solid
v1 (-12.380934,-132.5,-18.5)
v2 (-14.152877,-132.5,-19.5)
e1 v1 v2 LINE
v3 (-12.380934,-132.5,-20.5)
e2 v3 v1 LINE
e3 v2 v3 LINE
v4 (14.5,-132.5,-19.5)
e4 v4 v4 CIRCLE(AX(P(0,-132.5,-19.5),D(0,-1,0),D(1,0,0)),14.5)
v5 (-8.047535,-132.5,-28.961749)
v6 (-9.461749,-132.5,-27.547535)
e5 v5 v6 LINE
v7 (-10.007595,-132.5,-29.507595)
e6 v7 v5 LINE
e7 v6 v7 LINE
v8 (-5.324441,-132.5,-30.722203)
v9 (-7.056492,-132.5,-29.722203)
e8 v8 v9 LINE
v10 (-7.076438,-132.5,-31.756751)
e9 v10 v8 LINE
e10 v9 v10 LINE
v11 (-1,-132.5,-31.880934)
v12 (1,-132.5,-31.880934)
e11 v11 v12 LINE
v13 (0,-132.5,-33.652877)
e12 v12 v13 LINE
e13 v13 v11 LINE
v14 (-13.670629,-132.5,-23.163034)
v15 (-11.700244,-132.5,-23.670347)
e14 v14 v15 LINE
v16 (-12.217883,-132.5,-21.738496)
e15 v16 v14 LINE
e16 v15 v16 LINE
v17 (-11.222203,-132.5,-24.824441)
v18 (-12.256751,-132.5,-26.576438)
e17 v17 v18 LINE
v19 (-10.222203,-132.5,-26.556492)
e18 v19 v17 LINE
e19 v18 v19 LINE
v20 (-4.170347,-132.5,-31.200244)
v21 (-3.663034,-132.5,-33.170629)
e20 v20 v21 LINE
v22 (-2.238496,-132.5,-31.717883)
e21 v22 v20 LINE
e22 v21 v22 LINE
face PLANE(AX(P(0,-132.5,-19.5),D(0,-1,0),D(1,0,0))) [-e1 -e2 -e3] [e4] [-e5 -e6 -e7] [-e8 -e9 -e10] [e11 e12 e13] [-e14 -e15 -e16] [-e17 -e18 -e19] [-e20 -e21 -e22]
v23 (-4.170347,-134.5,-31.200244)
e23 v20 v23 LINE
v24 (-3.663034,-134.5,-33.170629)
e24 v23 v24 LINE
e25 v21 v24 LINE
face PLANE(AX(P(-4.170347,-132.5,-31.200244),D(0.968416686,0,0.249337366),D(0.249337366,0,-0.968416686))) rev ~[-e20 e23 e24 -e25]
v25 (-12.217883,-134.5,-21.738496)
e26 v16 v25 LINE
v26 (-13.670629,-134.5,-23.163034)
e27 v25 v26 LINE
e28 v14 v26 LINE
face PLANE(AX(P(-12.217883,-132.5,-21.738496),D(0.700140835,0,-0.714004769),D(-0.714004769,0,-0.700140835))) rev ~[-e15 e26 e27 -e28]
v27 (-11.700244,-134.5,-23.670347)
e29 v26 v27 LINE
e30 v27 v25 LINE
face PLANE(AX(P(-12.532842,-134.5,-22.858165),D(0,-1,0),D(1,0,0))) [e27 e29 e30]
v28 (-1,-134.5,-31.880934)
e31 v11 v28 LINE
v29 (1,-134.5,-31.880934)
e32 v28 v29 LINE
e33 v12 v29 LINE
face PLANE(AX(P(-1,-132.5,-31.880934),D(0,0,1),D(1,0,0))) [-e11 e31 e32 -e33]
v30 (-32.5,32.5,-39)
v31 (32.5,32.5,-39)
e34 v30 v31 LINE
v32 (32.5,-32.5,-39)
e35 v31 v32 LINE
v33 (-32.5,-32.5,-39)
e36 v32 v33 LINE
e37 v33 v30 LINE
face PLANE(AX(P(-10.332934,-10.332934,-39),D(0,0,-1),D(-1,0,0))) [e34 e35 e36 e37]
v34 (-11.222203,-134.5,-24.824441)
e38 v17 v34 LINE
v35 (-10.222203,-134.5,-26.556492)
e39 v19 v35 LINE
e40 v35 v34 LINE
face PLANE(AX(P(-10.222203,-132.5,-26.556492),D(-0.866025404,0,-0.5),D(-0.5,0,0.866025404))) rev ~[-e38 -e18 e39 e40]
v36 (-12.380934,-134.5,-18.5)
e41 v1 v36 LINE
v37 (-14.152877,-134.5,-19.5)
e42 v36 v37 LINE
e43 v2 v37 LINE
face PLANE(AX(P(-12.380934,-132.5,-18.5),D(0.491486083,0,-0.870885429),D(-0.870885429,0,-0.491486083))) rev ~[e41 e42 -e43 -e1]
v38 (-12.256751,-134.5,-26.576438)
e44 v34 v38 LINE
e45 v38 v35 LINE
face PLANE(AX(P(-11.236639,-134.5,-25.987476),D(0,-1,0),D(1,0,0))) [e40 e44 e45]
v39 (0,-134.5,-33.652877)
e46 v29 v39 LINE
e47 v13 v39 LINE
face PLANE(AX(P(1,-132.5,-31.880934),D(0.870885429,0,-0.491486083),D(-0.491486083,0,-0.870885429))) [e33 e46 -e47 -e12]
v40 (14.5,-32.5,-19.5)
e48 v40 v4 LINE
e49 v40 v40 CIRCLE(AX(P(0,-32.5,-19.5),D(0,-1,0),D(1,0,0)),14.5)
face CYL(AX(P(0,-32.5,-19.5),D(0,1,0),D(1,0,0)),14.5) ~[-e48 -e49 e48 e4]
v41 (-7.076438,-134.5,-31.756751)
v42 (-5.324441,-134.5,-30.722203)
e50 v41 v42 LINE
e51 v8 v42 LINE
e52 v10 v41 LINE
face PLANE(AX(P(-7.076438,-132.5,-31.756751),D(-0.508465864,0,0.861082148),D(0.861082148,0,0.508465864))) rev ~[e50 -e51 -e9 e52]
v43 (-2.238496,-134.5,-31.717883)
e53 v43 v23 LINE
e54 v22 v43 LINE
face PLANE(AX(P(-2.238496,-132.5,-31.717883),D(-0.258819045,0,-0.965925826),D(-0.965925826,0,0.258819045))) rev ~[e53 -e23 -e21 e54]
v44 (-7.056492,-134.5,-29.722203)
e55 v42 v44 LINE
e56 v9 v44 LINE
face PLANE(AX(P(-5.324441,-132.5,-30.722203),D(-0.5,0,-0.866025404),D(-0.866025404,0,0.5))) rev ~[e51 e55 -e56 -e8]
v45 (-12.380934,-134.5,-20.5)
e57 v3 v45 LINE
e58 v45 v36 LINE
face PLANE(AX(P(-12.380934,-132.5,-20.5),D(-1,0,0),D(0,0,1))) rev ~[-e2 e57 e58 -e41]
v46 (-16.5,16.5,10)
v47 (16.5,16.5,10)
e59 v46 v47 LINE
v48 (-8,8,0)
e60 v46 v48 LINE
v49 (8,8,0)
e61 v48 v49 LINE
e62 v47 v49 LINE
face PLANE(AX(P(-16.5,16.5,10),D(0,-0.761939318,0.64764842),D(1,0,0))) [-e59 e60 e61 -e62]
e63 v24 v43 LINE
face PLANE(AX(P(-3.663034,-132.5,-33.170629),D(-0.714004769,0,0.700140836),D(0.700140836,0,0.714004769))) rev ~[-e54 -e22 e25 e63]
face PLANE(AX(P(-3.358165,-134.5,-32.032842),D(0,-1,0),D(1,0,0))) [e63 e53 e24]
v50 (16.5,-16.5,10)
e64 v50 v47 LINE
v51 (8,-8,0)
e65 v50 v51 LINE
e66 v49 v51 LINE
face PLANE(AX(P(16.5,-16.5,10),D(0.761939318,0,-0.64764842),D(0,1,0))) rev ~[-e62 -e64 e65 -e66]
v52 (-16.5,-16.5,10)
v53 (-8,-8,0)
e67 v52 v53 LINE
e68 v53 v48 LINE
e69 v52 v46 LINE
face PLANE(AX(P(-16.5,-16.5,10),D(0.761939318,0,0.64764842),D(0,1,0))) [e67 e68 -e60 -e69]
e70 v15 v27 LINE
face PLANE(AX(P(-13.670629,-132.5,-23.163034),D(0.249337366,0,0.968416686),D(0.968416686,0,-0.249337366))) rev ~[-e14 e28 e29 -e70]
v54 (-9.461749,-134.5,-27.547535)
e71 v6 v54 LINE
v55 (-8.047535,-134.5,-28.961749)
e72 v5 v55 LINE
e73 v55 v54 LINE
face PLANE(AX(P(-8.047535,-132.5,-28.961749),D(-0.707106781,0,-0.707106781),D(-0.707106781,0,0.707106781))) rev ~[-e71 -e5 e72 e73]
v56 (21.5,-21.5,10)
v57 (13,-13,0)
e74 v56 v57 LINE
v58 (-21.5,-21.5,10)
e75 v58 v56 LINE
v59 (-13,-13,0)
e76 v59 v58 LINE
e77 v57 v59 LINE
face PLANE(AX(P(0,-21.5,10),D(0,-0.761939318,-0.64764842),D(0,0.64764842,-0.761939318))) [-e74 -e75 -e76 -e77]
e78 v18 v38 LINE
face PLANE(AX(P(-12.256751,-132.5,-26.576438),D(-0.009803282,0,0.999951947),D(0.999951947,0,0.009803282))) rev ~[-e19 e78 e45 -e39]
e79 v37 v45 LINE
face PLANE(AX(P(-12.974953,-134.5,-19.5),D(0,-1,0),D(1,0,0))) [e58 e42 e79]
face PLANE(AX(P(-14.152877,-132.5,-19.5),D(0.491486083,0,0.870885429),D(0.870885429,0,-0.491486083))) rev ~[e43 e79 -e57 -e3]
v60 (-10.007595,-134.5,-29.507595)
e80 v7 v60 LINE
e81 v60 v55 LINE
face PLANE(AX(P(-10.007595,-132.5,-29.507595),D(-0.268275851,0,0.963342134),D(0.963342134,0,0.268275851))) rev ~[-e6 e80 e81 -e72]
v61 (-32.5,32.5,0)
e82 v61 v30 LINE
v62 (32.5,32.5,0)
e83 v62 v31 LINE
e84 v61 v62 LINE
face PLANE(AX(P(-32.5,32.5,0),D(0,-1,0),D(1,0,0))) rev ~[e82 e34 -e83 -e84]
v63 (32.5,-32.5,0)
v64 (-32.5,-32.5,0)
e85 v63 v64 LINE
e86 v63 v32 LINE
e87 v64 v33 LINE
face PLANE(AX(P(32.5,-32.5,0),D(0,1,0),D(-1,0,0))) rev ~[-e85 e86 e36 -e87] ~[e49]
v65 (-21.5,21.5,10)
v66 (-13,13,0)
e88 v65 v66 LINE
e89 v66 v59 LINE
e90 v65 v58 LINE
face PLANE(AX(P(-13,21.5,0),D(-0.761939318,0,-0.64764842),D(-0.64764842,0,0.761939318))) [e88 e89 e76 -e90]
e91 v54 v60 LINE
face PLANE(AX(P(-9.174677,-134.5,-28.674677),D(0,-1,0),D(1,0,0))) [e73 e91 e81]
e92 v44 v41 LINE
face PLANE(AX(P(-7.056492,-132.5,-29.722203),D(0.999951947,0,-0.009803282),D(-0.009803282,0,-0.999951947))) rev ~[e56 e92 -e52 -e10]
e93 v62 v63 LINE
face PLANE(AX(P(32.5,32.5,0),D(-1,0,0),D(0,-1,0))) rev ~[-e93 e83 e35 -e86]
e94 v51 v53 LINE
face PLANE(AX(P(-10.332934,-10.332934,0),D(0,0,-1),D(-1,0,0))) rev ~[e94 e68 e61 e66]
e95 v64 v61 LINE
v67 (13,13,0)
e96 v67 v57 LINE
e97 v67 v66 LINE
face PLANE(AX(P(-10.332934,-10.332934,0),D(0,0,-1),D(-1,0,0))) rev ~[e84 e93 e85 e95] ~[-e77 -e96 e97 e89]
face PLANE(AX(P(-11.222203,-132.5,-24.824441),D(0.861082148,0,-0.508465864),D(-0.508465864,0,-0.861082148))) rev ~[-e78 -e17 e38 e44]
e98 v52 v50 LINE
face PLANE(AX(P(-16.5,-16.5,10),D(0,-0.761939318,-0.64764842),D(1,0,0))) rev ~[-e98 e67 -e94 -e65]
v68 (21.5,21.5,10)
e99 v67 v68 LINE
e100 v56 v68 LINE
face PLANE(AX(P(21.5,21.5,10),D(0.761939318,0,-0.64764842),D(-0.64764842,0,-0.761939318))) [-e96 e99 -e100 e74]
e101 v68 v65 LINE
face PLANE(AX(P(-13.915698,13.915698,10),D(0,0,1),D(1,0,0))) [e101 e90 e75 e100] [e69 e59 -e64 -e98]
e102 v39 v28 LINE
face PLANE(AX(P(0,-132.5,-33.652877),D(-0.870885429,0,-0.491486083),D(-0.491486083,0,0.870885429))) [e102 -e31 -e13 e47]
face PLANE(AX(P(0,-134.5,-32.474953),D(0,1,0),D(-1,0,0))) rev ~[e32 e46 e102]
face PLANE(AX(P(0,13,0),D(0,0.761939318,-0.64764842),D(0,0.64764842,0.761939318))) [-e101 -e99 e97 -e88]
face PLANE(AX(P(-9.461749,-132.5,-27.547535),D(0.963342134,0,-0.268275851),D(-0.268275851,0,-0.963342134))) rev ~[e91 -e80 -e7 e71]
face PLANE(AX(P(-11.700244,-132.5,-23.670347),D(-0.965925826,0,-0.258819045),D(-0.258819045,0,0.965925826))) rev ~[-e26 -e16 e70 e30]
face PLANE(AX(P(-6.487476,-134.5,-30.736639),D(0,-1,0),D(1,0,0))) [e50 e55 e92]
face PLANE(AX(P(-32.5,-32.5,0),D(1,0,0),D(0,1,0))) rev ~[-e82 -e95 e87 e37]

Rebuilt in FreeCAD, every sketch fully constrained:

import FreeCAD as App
import Part
import Sketcher

V = App.Vector
Q = App.Units.Quantity


def faces_at(feature, points):
    """Names of the faces that lie closest to the given points."""
    faces = feature.Shape.Faces
    near = lambda p: min(range(len(faces)), key=lambda i: faces[i].distToShape(Part.Vertex(*p))[0])
    return sorted({f"Face{near(p) + 1}" for p in points})


def add_polygon(sketch, points):
    """Adds a closed chain of lines whose ends are joined by coincident constraints."""
    first, n = sketch.GeometryCount, len(points)
    for a, b in zip(points, points[1:] + points[:1]):
        sketch.addGeometry(Part.LineSegment(App.Vector(*a, 0), App.Vector(*b, 0)), False)
    for i in range(n):
        sketch.addConstraint(Sketcher.Constraint("Coincident", first + i, 2, first + (i + 1) % n, 1))

doc = App.newDocument("Part")
body = doc.addObject("PartDesign::Body", "Body")

sketch1 = body.newObject("Sketcher::SketchObject", "Sketch")
sketch1.AttachmentSupport = (doc.getObject("XY_Plane"), [""])
sketch1.MapMode = "FlatFace"
add_polygon(sketch1, [(-22, 22), (-22, -22), (22, -22), (22, 22)])
add_polygon(sketch1, [(8, -8), (-8, -8), (-8, 8), (8, 8)])
sketch1.addConstraint(Sketcher.Constraint("Vertical", 0))
sketch1.addConstraint(Sketcher.Constraint("Horizontal", 1))
sketch1.addConstraint(Sketcher.Constraint("Vertical", 2))
sketch1.addConstraint(Sketcher.Constraint("Horizontal", 3))
sketch1.addConstraint(Sketcher.Constraint("Horizontal", 4))
sketch1.addConstraint(Sketcher.Constraint("Vertical", 5))
sketch1.addConstraint(Sketcher.Constraint("Horizontal", 6))
sketch1.addConstraint(Sketcher.Constraint("Vertical", 7))
sketch1.addConstraint(Sketcher.Constraint("Symmetric", 0, 2, 2, 2, -1, 1))
sketch1.addConstraint(Sketcher.Constraint("Symmetric", 4, 2, 6, 2, -1, 1))
sketch1.addConstraint(Sketcher.Constraint("Equal", 3, 0))
sketch1.addConstraint(Sketcher.Constraint("Equal", 6, 5))
sketch1.addConstraint(Sketcher.Constraint("DistanceX", 1, 1, 1, 2, Q("43 mm")))
sketch1.addConstraint(Sketcher.Constraint("DistanceX", 4, 2, 4, 1, Q("16 mm")))
pad1 = body.newObject("PartDesign::Pad", "Pad")
pad1.Profile = sketch1
pad1.Length = 10
body2 = doc.addObject("PartDesign::Body", "Body001")

sketch2 = body2.newObject("Sketcher::SketchObject", "Sketch001")
sketch2.AttachmentSupport = (doc.getObject("XY_Plane001"), [""])
sketch2.MapMode = "FlatFace"
sketch2.AttachmentOffset = App.Placement(V(0, 0, 10), App.Rotation())
add_polygon(sketch2, [(-16, 16), (-16, -16), (16, -16), (16, 16)])
sketch2.addConstraint(Sketcher.Constraint("Vertical", 0))
sketch2.addConstraint(Sketcher.Constraint("Horizontal", 1))
sketch2.addConstraint(Sketcher.Constraint("Vertical", 2))
sketch2.addConstraint(Sketcher.Constraint("Horizontal", 3))
sketch2.addConstraint(Sketcher.Constraint("Symmetric", 0, 2, 2, 2, -1, 1))
sketch2.addConstraint(Sketcher.Constraint("Equal", 3, 0))
sketch2.addConstraint(Sketcher.Constraint("DistanceX", 1, 1, 1, 2, Q("33 mm")))
pad2 = body2.newObject("PartDesign::Pad", "Pad001")
pad2.Profile = sketch2
pad2.Length = 10
pad2.Reversed = True
doc.recompute()

datumplane = body2.newObject("PartDesign::Plane", "DatumPlane")
datumplane.AttachmentSupport = (doc.getObject("XY_Plane001"), [""])
datumplane.MapMode = "FlatFace"
datumplane.AttachmentOffset = App.Placement(V(0, 0, 10), App.Rotation())
draft = body2.newObject("PartDesign::Draft", "Draft")
draft.Base = (pad2, faces_at(pad2, [
    (-16.5, 0, 5),
    (0, -16.5, 5),
    (16.5, 0, 5),
    (0, 16.5, 5),
]))
draft.NeutralPlane = (datumplane, [""])
draft.Angle = 40.364537
draft.Reversed = True
doc.recompute()

boolean = body.newObject("PartDesign::Boolean", "Boolean")
boolean.Type = "Cut"
boolean.addObjects([body2])

sketch3 = body.newObject("Sketcher::SketchObject", "Sketch002")
sketch3.AttachmentSupport = (doc.getObject("XZ_Plane"), [""])
sketch3.MapMode = "FlatFace"
sketch3.AttachmentOffset = App.Placement(V(0, 0, -21.5), App.Rotation())
add_polygon(sketch3, [(-29, -7), (-29, 17), (29, 17), (29, -7)])
add_polygon(sketch3, [(22, 10), (-22, 10), (-13, 0), (13, 0)])
sketch3.addConstraint(Sketcher.Constraint("Vertical", 0))
sketch3.addConstraint(Sketcher.Constraint("Horizontal", 1))
sketch3.addConstraint(Sketcher.Constraint("Vertical", 2))
sketch3.addConstraint(Sketcher.Constraint("Horizontal", 3))
sketch3.addConstraint(Sketcher.Constraint("Horizontal", 4))
sketch3.addConstraint(Sketcher.Constraint("Horizontal", 6))
sketch3.addConstraint(Sketcher.Constraint("Symmetric", 5, 2, 6, 2, -1, 1))
sketch3.addConstraint(Sketcher.Constraint("Equal", 5, 7))
sketch3.addConstraint(Sketcher.Constraint("DistanceX", 4, 2, 4, 1, Q("43 mm")))
sketch3.addConstraint(Sketcher.Constraint("DistanceX", 6, 1, 6, 2, Q("26 mm")))
sketch3.addConstraint(Sketcher.Constraint("DistanceY", -1, 1, 4, 2, Q("10 mm")))
sketch3.addConstraint(Sketcher.Constraint("DistanceX", 1, 1, 1, 2, Q("57.326 mm")))
sketch3.addConstraint(Sketcher.Constraint("DistanceY", 0, 1, 0, 2, Q("24.326 mm")))
sketch3.addConstraint(Sketcher.Constraint("DistanceX", 0, 2, -1, 1, Q("28.663 mm")))
sketch3.addConstraint(Sketcher.Constraint("DistanceY", -1, 1, 0, 2, Q("17.163 mm")))
pocket1 = body.newObject("PartDesign::Pocket", "Pocket")
pocket1.Profile = sketch3
pocket1.Length = 56
pocket1.Reversed = True

sketch4 = body.newObject("Sketcher::SketchObject", "Sketch003")
sketch4.AttachmentSupport = (doc.getObject("YZ_Plane"), [""])
sketch4.MapMode = "FlatFace"
add_polygon(sketch4, [(29, 17), (-29, 17), (-29, -7), (29, -7)])
add_polygon(sketch4, [(-22, 10), (22, 10), (13, 0), (-13, 0)])
sketch4.addConstraint(Sketcher.Constraint("Horizontal", 0))
sketch4.addConstraint(Sketcher.Constraint("Vertical", 1))
sketch4.addConstraint(Sketcher.Constraint("Horizontal", 2))
sketch4.addConstraint(Sketcher.Constraint("Vertical", 3))
sketch4.addConstraint(Sketcher.Constraint("Horizontal", 4))
sketch4.addConstraint(Sketcher.Constraint("Horizontal", 6))
sketch4.addConstraint(Sketcher.Constraint("Symmetric", 5, 2, 6, 2, -1, 1))
sketch4.addConstraint(Sketcher.Constraint("Equal", 5, 7))
sketch4.addConstraint(Sketcher.Constraint("DistanceX", 4, 1, 4, 2, Q("43 mm")))
sketch4.addConstraint(Sketcher.Constraint("DistanceX", 6, 2, 6, 1, Q("26 mm")))
sketch4.addConstraint(Sketcher.Constraint("DistanceY", -1, 1, 4, 2, Q("10 mm")))
sketch4.addConstraint(Sketcher.Constraint("DistanceX", 0, 2, 0, 1, Q("57.326 mm")))
sketch4.addConstraint(Sketcher.Constraint("DistanceY", 1, 2, 1, 1, Q("24.326 mm")))
sketch4.addConstraint(Sketcher.Constraint("DistanceX", 0, 2, -1, 1, Q("28.663 mm")))
sketch4.addConstraint(Sketcher.Constraint("DistanceY", -1, 1, 0, 2, Q("17.163 mm")))
pocket2 = body.newObject("PartDesign::Pocket", "Pocket001")
pocket2.Profile = sketch4
pocket2.Length = 56
pocket2.Midplane = True

sketch5 = body.newObject("Sketcher::SketchObject", "Sketch004")
sketch5.AttachmentSupport = (doc.getObject("XY_Plane"), [""])
sketch5.MapMode = "FlatFace"
add_polygon(sketch5, [(32, -32), (-32, -32), (-32, 32), (32, 32)])
sketch5.addConstraint(Sketcher.Constraint("Horizontal", 0))
sketch5.addConstraint(Sketcher.Constraint("Vertical", 1))
sketch5.addConstraint(Sketcher.Constraint("Horizontal", 2))
sketch5.addConstraint(Sketcher.Constraint("Vertical", 3))
sketch5.addConstraint(Sketcher.Constraint("Symmetric", 0, 2, 2, 2, -1, 1))
sketch5.addConstraint(Sketcher.Constraint("Equal", 2, 1))
sketch5.addConstraint(Sketcher.Constraint("DistanceX", 0, 2, 0, 1, Q("65 mm")))
pad3 = body.newObject("PartDesign::Pad", "Pad002")
pad3.Profile = sketch5
pad3.Length = 39
pad3.Reversed = True

sketch6 = body.newObject("Sketcher::SketchObject", "Sketch005")
sketch6.AttachmentSupport = (doc.getObject("XZ_Plane"), [""])
sketch6.MapMode = "FlatFace"
sketch6.AttachmentOffset = App.Placement(V(0, 0, 32.5), App.Rotation())
sketch6.addGeometry(Part.Circle(V(0, -20, 0), V(0, 0, 1), 14), False)
sketch6.addConstraint(Sketcher.Constraint("PointOnObject", 0, 3, -2))
sketch6.addConstraint(Sketcher.Constraint("Diameter", 0, Q("29 mm")))
sketch6.addConstraint(Sketcher.Constraint("DistanceY", 0, 3, -1, 1, Q("19.5 mm")))
pad4 = body.newObject("PartDesign::Pad", "Pad003")
pad4.Profile = sketch6
pad4.Length = 100

sketch7 = body.newObject("Sketcher::SketchObject", "Sketch006")
sketch7.AttachmentSupport = (doc.getObject("XZ_Plane"), [""])
sketch7.MapMode = "FlatFace"
sketch7.AttachmentOffset = App.Placement(V(0, 0, 132.5), App.Rotation())
add_polygon(sketch7, [(1, -31.9), (-1, -31.9), (0, -33.7)])
add_polygon(sketch7, [(-3.7, -33.2), (-2.2, -31.7), (-4.2, -31.2)])
add_polygon(sketch7, [(-7.1, -31.8), (-5.3, -30.7), (-7.1, -29.7)])
add_polygon(sketch7, [(-10, -29.5), (-8, -29), (-9.5, -27.5)])
add_polygon(sketch7, [(-12.3, -26.6), (-10.2, -26.6), (-11.2, -24.8)])
add_polygon(sketch7, [(-13.7, -23.2), (-11.7, -23.7), (-12.2, -21.7)])
add_polygon(sketch7, [(-14.2, -19.5), (-12.4, -20.5), (-12.4, -18.5)])
sketch7.addConstraint(Sketcher.Constraint("Horizontal", 0))
sketch7.addConstraint(Sketcher.Constraint("Vertical", 19))
sketch7.addConstraint(Sketcher.Constraint("PointOnObject", 1, 2, -2))
sketch7.addConstraint(Sketcher.Constraint("Perpendicular", 2, 18))
sketch7.addConstraint(Sketcher.Constraint("Perpendicular", 1, 20))
sketch7.addConstraint(Sketcher.Constraint("Equal", 0, 19))
sketch7.addConstraint(Sketcher.Constraint("Equal", 1, 2))
sketch7.addConstraint(Sketcher.Constraint("Equal", 2, 3))
sketch7.addConstraint(Sketcher.Constraint("Equal", 3, 5))
sketch7.addConstraint(Sketcher.Constraint("Equal", 5, 6))
sketch7.addConstraint(Sketcher.Constraint("Equal", 4, 7))
sketch7.addConstraint(Sketcher.Constraint("Equal", 6, 8))
sketch7.addConstraint(Sketcher.Constraint("Equal", 8, 9))
sketch7.addConstraint(Sketcher.Constraint("Equal", 7, 10))
sketch7.addConstraint(Sketcher.Constraint("Equal", 9, 11))
sketch7.addConstraint(Sketcher.Constraint("Equal", 11, 12))
sketch7.addConstraint(Sketcher.Constraint("Equal", 10, 13))
sketch7.addConstraint(Sketcher.Constraint("Equal", 12, 14))
sketch7.addConstraint(Sketcher.Constraint("Equal", 14, 15))
sketch7.addConstraint(Sketcher.Constraint("Equal", 13, 16))
sketch7.addConstraint(Sketcher.Constraint("Equal", 15, 17))
sketch7.addConstraint(Sketcher.Constraint("DistanceX", 0, 2, 0, 1, Q("2 mm")))
sketch7.addConstraint(Sketcher.Constraint("Angle", 4, Q("165 deg")))
sketch7.addConstraint(Sketcher.Constraint("Angle", 7, Q("150 deg")))
sketch7.addConstraint(Sketcher.Constraint("Angle", 10, Q("135 deg")))
sketch7.addConstraint(Sketcher.Constraint("Angle", 13, Q("120 deg")))
sketch7.addConstraint(Sketcher.Constraint("Angle", 16, Q("105 deg")))
sketch7.addConstraint(Sketcher.Constraint("Distance", 4, Q("2 mm")))
sketch7.addConstraint(Sketcher.Constraint("DistanceY", 18, 2, -1, 1, Q("20.5 mm")))
sketch7.addConstraint(Sketcher.Constraint("DistanceY", 8, 2, 9, 2, Q("2.795002 mm")))
sketch7.addConstraint(Sketcher.Constraint("DistanceX", 14, 2, 10, 2, Q("2.795002 mm")))
sketch7.addConstraint(Sketcher.Constraint("DistanceX", 9, 2, 5, 2, Q("4.384501 mm")))
sketch7.addConstraint(Sketcher.Constraint("DistanceX", 10, 2, 4, 2, Q("5.291402 mm")))
sketch7.addConstraint(Sketcher.Constraint("DistanceY", 5, 2, -1, 1, Q("33.170629 mm")))
sketch7.addConstraint(Sketcher.Constraint("DistanceX", 6, 2, -1, 1, Q("5.324441 mm")))
sketch7.addConstraint(Sketcher.Constraint("DistanceY", 8, 2, -1, 1, Q("31.756751 mm")))
sketch7.addConstraint(Sketcher.Constraint("DistanceX", 10, 2, -1, 1, Q("9.461749 mm")))
sketch7.addConstraint(Sketcher.Constraint("DistanceY", 13, 2, -1, 1, Q("24.824441 mm")))
sketch7.addConstraint(Sketcher.Constraint("DistanceX", 17, 2, -1, 1, Q("13.670629 mm")))
sketch7.addConstraint(Sketcher.Constraint("DistanceY", 0, 2, 3, 2, Q("0.163051 mm")))
sketch7.addConstraint(Sketcher.Constraint("DistanceY", 14, 2, 15, 2, Q("2.906091 mm")))
sketch7.addConstraint(Sketcher.Constraint("DistanceX", 18, 2, 16, 2, Q("0.163051 mm")))
pad5 = body.newObject("PartDesign::Pad", "Pad004")
pad5.Profile = sketch7
pad5.Length = 2

doc.recompute()
